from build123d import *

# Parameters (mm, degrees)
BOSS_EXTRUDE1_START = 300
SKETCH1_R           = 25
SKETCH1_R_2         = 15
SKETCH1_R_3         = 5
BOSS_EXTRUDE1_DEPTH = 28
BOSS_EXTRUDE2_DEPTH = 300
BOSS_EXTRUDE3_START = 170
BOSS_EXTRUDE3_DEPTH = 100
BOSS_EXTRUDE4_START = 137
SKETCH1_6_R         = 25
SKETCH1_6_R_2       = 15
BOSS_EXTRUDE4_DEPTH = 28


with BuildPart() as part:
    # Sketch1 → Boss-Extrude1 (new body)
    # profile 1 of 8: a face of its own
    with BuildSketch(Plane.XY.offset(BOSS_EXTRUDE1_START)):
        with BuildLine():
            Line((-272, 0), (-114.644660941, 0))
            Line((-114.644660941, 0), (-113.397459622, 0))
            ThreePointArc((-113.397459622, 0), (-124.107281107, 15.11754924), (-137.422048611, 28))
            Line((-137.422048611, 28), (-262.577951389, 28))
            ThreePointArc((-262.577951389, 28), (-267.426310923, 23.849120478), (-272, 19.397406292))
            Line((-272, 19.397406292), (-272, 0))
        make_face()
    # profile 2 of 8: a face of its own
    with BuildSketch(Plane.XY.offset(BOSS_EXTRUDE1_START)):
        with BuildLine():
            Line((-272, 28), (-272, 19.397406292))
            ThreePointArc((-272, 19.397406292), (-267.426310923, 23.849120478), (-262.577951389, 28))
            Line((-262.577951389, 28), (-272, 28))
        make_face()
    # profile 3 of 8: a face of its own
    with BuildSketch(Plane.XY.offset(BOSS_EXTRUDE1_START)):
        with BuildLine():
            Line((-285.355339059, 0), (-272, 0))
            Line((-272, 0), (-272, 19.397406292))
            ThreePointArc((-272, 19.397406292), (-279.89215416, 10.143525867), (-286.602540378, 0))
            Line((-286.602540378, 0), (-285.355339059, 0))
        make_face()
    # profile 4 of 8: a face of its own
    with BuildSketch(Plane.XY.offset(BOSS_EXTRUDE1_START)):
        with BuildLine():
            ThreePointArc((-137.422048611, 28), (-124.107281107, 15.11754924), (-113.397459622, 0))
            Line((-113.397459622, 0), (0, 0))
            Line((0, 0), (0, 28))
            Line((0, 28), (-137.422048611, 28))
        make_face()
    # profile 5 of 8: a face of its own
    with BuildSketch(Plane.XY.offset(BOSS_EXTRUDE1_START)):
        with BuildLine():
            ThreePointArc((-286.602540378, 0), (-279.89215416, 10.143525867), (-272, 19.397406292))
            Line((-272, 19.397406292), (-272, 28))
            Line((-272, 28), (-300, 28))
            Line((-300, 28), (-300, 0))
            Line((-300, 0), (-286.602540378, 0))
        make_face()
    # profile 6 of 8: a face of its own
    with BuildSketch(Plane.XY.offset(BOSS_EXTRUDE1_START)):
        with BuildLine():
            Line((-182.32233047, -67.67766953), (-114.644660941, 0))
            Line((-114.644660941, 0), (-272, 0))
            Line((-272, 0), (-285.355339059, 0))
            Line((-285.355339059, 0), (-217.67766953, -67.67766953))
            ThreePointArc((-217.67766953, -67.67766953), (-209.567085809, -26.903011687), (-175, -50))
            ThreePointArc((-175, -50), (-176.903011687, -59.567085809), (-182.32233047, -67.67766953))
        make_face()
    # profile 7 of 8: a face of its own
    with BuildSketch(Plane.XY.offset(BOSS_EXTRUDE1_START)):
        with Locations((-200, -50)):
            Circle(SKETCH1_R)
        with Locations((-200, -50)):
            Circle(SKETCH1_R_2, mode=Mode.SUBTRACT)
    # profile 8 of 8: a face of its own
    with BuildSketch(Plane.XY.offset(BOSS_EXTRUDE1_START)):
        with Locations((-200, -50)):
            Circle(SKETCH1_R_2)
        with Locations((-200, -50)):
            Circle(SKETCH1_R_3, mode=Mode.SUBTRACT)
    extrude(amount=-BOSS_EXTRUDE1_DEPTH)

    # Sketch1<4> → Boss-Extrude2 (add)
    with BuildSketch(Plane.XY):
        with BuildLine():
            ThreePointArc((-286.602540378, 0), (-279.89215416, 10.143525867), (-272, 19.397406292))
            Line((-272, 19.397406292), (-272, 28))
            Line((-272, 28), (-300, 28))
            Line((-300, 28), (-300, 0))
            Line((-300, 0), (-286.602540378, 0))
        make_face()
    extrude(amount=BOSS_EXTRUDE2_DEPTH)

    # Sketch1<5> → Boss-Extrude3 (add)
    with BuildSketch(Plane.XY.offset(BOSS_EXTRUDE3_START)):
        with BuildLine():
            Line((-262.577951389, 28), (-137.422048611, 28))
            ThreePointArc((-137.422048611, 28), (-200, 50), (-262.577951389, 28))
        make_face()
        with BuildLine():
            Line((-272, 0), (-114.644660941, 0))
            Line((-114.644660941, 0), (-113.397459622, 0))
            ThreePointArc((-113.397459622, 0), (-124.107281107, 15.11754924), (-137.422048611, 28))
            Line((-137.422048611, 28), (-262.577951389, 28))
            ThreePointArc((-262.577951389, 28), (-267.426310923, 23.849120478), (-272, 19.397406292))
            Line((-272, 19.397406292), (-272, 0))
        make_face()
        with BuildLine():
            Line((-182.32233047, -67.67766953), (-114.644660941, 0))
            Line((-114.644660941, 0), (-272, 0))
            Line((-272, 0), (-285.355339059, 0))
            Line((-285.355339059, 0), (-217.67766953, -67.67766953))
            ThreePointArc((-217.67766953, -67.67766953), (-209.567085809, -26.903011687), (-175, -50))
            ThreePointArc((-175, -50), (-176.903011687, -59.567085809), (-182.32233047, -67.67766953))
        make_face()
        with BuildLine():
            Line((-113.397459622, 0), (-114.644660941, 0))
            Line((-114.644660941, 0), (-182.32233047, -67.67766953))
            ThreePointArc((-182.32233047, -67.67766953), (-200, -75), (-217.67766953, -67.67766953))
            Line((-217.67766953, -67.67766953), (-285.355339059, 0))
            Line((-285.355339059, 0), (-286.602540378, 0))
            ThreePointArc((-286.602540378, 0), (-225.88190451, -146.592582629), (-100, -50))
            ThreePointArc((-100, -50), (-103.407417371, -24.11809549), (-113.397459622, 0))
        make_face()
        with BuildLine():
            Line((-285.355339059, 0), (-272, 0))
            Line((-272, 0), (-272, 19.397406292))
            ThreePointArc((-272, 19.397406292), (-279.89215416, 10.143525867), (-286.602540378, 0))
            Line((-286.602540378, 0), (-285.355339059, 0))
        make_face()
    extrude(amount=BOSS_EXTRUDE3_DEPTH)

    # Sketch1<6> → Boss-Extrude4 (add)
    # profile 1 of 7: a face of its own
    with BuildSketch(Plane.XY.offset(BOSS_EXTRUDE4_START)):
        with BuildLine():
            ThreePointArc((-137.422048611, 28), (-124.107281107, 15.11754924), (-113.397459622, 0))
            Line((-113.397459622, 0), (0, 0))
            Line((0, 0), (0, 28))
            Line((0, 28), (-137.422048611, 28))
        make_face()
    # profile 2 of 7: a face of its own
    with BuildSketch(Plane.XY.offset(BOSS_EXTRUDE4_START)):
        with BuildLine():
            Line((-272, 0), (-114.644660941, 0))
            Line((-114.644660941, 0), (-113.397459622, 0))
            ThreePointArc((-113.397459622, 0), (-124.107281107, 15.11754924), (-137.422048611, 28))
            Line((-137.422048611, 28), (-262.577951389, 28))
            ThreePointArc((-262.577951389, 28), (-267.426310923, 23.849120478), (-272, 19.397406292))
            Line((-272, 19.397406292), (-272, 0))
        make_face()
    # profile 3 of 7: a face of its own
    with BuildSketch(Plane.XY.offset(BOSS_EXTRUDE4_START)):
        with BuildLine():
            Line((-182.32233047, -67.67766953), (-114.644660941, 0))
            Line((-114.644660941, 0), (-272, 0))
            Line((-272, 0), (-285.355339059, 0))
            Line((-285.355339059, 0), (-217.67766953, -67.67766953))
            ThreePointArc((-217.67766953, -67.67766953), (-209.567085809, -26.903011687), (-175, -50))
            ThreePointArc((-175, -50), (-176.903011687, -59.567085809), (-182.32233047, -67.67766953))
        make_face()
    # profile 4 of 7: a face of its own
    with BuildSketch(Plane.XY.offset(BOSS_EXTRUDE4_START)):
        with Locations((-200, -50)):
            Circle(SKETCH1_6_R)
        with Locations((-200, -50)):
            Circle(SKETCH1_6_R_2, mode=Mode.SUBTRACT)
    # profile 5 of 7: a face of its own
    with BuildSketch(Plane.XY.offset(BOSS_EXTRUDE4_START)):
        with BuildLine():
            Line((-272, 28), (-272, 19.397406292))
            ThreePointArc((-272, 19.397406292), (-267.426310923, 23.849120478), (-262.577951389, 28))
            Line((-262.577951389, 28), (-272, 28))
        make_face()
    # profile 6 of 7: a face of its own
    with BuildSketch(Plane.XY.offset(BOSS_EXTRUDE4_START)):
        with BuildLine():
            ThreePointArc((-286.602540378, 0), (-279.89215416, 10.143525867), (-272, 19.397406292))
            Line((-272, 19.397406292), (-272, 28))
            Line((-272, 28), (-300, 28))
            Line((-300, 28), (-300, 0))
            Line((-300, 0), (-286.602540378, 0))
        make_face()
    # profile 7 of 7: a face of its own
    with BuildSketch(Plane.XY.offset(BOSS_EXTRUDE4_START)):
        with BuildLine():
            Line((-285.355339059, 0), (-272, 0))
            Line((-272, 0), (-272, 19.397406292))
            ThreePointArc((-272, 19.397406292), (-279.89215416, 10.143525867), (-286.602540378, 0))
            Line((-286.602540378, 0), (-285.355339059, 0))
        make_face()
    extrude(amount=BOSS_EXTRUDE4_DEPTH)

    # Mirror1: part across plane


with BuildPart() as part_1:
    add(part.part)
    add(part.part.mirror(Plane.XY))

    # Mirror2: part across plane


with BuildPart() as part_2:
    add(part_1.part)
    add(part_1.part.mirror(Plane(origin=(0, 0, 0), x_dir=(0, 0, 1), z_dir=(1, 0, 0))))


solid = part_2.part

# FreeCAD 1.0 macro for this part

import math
import FreeCAD as App
import Part
import Sketcher

V = App.Vector

doc = App.newDocument("Part")
body = doc.addObject("PartDesign::Body", "Body")

# Sketch on XY plane
sketch1 = body.newObject("Sketcher::SketchObject", "Sketch")
sketch1.AttachmentSupport = (doc.getObject("XY_Plane"), [""])
sketch1.MapMode = "FlatFace"
sketch1.AttachmentOffset = App.Placement(V(0, 0, 300), App.Rotation())
sketch1.addGeometry([
    Part.LineSegment(V(-115, 0, 0), V(0, 0, 0)),  # 0
    Part.LineSegment(V(0, 0, 0), V(0, 28, 0)),  # 1
    Part.LineSegment(V(0, 28, 0), V(-300, 28, 0)),  # 2
    Part.LineSegment(V(-300, 28, 0), V(-300, 0, 0)),  # 3
    Part.LineSegment(V(-300, 0, 0), V(-285, 0, 0)),  # 4
    Part.LineSegment(V(-285, 0, 0), V(-218, -68, 0)),  # 5
    Part.ArcOfCircle(Part.Circle(V(-200, -50, 0), V(0, 0, 1), 25), math.radians(-135), math.radians(-45)),  # 6
    Part.LineSegment(V(-182, -68, 0), V(-115, 0, 0)),  # 7
    Part.Circle(V(-200, -50, 0), V(0, 0, 1), 5),  # 8
], False)
sketch1.addConstraint([
    Sketcher.Constraint("Coincident", 0, 2, 1, 1),
    Sketcher.Constraint("Coincident", 1, 2, 2, 1),
    Sketcher.Constraint("Coincident", 2, 2, 3, 1),
    Sketcher.Constraint("Coincident", 3, 2, 4, 1),
    Sketcher.Constraint("Coincident", 4, 2, 5, 1),
    Sketcher.Constraint("Tangent", 5, 2, 6, 1),
    Sketcher.Constraint("Tangent", 6, 2, 7, 1),
    Sketcher.Constraint("Coincident", 7, 2, 0, 1),
    Sketcher.Constraint("Horizontal", 0),
    Sketcher.Constraint("Vertical", 1),
    Sketcher.Constraint("Horizontal", 2),
    Sketcher.Constraint("Vertical", 3),
    Sketcher.Constraint("Horizontal", 4),
    Sketcher.Constraint("Coincident", 0, 2, -1, 1),
    Sketcher.Constraint("Coincident", 8, 3, 6, 3),
    Sketcher.Constraint("PointOnObject", 3, 2, -1),
    Sketcher.Constraint("Perpendicular", 5, 7),
    Sketcher.Constraint("Horizontal", 5, 2, 6, 2),
    Sketcher.Constraint("Diameter", 8, 10.0),
    Sketcher.Constraint("Radius", 6, 25.0),
    Sketcher.Constraint("DistanceX", 2, 2, 2, 1, 300.0),
    Sketcher.Constraint("DistanceY", 1, 1, 1, 2, 28.0),
    Sketcher.Constraint("DistanceX", 6, 3, -1, 1, 200.0),
    Sketcher.Constraint("DistanceY", 6, 3, -1, 1, 50.0),
])
pad1 = body.newObject("PartDesign::Pad", "Pad")
pad1.Profile = sketch1
pad1.Length = 28
pad1.Reversed = True

# Sketch on XY plane
sketch2 = body.newObject("Sketcher::SketchObject", "Sketch001")
sketch2.AttachmentSupport = (doc.getObject("XY_Plane"), [""])
sketch2.MapMode = "FlatFace"
sketch2.addGeometry([
    Part.ArcOfCircle(Part.Circle(V(-200, -50, 0), V(0, 0, 1), 100), math.radians(136.05), math.radians(150)),  # 0
    Part.LineSegment(V(-272, 19, 0), V(-272, 28, 0)),  # 1
    Part.LineSegment(V(-272, 28, 0), V(-300, 28, 0)),  # 2
    Part.LineSegment(V(-300, 28, 0), V(-300, 0, 0)),  # 3
    Part.LineSegment(V(-300, 0, 0), V(-287, 0, 0)),  # 4
], False)
sketch2.addConstraint([
    Sketcher.Constraint("Coincident", 0, 1, 1, 1),
    Sketcher.Constraint("Coincident", 1, 2, 2, 1),
    Sketcher.Constraint("Coincident", 2, 2, 3, 1),
    Sketcher.Constraint("Coincident", 3, 2, 4, 1),
    Sketcher.Constraint("Coincident", 4, 2, 0, 2),
    Sketcher.Constraint("Vertical", 1),
    Sketcher.Constraint("Horizontal", 2),
    Sketcher.Constraint("Vertical", 3),
    Sketcher.Constraint("Horizontal", 4),
    Sketcher.Constraint("PointOnObject", 3, 2, -1),
    Sketcher.Constraint("Equal", 2, 3),
    Sketcher.Constraint("Radius", 0, 100.0),
    Sketcher.Constraint("DistanceX", 2, 2, 2, 1, 28.0),
    Sketcher.Constraint("DistanceX", 0, 3, -1, 1, 200.0),
    Sketcher.Constraint("DistanceY", 0, 3, -1, 1, 50.0),
    Sketcher.Constraint("DistanceX", 0, 1, -1, 1, 272.0),
])
pad2 = body.newObject("PartDesign::Pad", "Pad001")
pad2.Profile = sketch2
pad2.Length = 300

# Sketch on XY plane
sketch3 = body.newObject("Sketcher::SketchObject", "Sketch002")
sketch3.AttachmentSupport = (doc.getObject("XY_Plane"), [""])
sketch3.MapMode = "FlatFace"
sketch3.AttachmentOffset = App.Placement(V(0, 0, 170), App.Rotation())
sketch3.addGeometry([
    Part.ArcOfCircle(Part.Circle(V(-200, -50, 0), V(0, 0, 1), 100), math.radians(51), math.radians(129)),  # 0
    Part.ArcOfCircle(Part.Circle(V(-200, -50, 0), V(0, 0, 1), 100), math.radians(128.74), math.radians(136.05)),  # 1
    Part.ArcOfCircle(Part.Circle(V(-200, -50, 0), V(0, 0, 1), 100), math.radians(136.05), math.radians(150)),  # 2
    Part.ArcOfCircle(Part.Circle(V(-200, -50, 0), V(0, 0, 1), 100), math.radians(150), math.radians(360)),  # 3
    Part.ArcOfCircle(Part.Circle(V(-200, -50, 0), V(0, 0, 1), 100), math.radians(0), math.radians(30)),  # 4
    Part.ArcOfCircle(Part.Circle(V(-200, -50, 0), V(0, 0, 1), 100), math.radians(30), math.radians(51)),  # 5
    Part.ArcOfCircle(Part.Circle(V(-200, -50, 0), V(0, 0, 1), 25), math.radians(-45), math.radians(225)),  # 6
    Part.ArcOfCircle(Part.Circle(V(-200, -50, 0), V(0, 0, 1), 25), math.radians(-135), math.radians(-45)),  # 7
], False)
sketch3.addConstraint([
    Sketcher.Constraint("Tangent", 0, 2, 1, 1),
    Sketcher.Constraint("Tangent", 1, 2, 2, 1),
    Sketcher.Constraint("Tangent", 2, 2, 3, 1),
    Sketcher.Constraint("Tangent", 3, 2, 4, 1),
    Sketcher.Constraint("Tangent", 4, 2, 5, 1),
    Sketcher.Constraint("Tangent", 5, 2, 0, 1),
    Sketcher.Constraint("Tangent", 6, 1, 7, 2),
    Sketcher.Constraint("Coincident", 7, 1, 6, 2),
    Sketcher.Constraint("Coincident", 2, 3, 0, 3),
    Sketcher.Constraint("Coincident", 6, 3, 0, 3),
    Sketcher.Constraint("Equal", 2, 3),
    Sketcher.Constraint("PointOnObject", 2, 2, -1),
    Sketcher.Constraint("PointOnObject", 4, 2, -1),
    Sketcher.Constraint("Horizontal", 7, 3, 3, 2),
    Sketcher.Constraint("Horizontal", 0, 2, 5, 2),
    Sketcher.Constraint("Horizontal", 6, 1, 7, 1),
    Sketcher.Constraint("Radius", 0, 100.0),
    Sketcher.Constraint("Radius", 6, 25.0),
    Sketcher.Constraint("DistanceX", 0, 3, -1, 1, 200.0),
    Sketcher.Constraint("DistanceY", 0, 3, -1, 1, 50.0),
    Sketcher.Constraint("DistanceY", -1, 1, 0, 2, 28.0),
    Sketcher.Constraint("DistanceX", 1, 2, -1, 1, 272.0),
    Sketcher.Constraint("DistanceX", 6, 1, -1, 1, 182.32233),
])
pad3 = body.newObject("PartDesign::Pad", "Pad002")
pad3.Profile = sketch3
pad3.Length = 100

# Sketch on XY plane
sketch4 = body.newObject("Sketcher::SketchObject", "Sketch003")
sketch4.AttachmentSupport = (doc.getObject("XY_Plane"), [""])
sketch4.MapMode = "FlatFace"
sketch4.AttachmentOffset = App.Placement(V(0, 0, 137), App.Rotation())
sketch4.addGeometry([
    Part.LineSegment(V(0, 0, 0), V(0, 28, 0)),  # 0
    Part.LineSegment(V(0, 28, 0), V(-300, 28, 0)),  # 1
    Part.LineSegment(V(-300, 28, 0), V(-300, 0, 0)),  # 2
    Part.LineSegment(V(-300, 0, 0), V(-285, 0, 0)),  # 3
    Part.LineSegment(V(-285, 0, 0), V(-218, -68, 0)),  # 4
    Part.ArcOfCircle(Part.Circle(V(-200, -50, 0), V(0, 0, 1), 25), math.radians(-135), math.radians(-45)),  # 5
    Part.LineSegment(V(-182, -68, 0), V(-115, 0, 0)),  # 6
    Part.LineSegment(V(-115, 0, 0), V(0, 0, 0)),  # 7
    Part.Circle(V(-200, -50, 0), V(0, 0, 1), 15),  # 8
], False)
sketch4.addConstraint([
    Sketcher.Constraint("Coincident", 0, 2, 1, 1),
    Sketcher.Constraint("Coincident", 1, 2, 2, 1),
    Sketcher.Constraint("Coincident", 2, 2, 3, 1),
    Sketcher.Constraint("Coincident", 3, 2, 4, 1),
    Sketcher.Constraint("Tangent", 4, 2, 5, 1),
    Sketcher.Constraint("Tangent", 5, 2, 6, 1),
    Sketcher.Constraint("Coincident", 6, 2, 7, 1),
    Sketcher.Constraint("Coincident", 7, 2, 0, 1),
    Sketcher.Constraint("Vertical", 0),
    Sketcher.Constraint("Horizontal", 1),
    Sketcher.Constraint("Vertical", 2),
    Sketcher.Constraint("Horizontal", 3),
    Sketcher.Constraint("Horizontal", 7),
    Sketcher.Constraint("Coincident", 7, 2, -1, 1),
    Sketcher.Constraint("Coincident", 8, 3, 5, 3),
    Sketcher.Constraint("PointOnObject", 2, 2, -1),
    Sketcher.Constraint("Perpendicular", 4, 6),
    Sketcher.Constraint("Horizontal", 4, 2, 5, 2),
    Sketcher.Constraint("Diameter", 8, 30.0),
    Sketcher.Constraint("Radius", 5, 25.0),
    Sketcher.Constraint("DistanceX", 1, 2, 1, 1, 300.0),
    Sketcher.Constraint("DistanceY", 0, 1, 0, 2, 28.0),
    Sketcher.Constraint("DistanceX", 5, 3, -1, 1, 200.0),
    Sketcher.Constraint("DistanceY", 5, 3, -1, 1, 50.0),
])
pad4 = body.newObject("PartDesign::Pad", "Pad003")
pad4.Profile = sketch4
pad4.Length = 28
body2 = doc.addObject("PartDesign::Body", "Body001")
doc.recompute()

body2.BaseFeature = body
doc.recompute()

mirroring = doc.addObject("Part::Mirroring", "Mirroring")
mirroring.Source = body
mirroring.Base = V(0, 0, 0)
mirroring.Normal = V(0, 0, 1)
body3 = doc.addObject("PartDesign::Body", "Body002")
body3.BaseFeature = mirroring
boolean = body2.newObject("PartDesign::Boolean", "Boolean")
boolean.Type = "Fuse"
boolean.addObjects([body3])
doc.recompute()
body4 = doc.addObject("PartDesign::Body", "Body003")
doc.recompute()

body4.BaseFeature = body2
doc.recompute()

mirroring2 = doc.addObject("Part::Mirroring", "Mirroring001")
mirroring2.Source = body2
mirroring2.Base = V(0, 0, 0)
mirroring2.Normal = V(1, 0, 0)
body5 = doc.addObject("PartDesign::Body", "Body004")
body5.BaseFeature = mirroring2
boolean2 = body4.newObject("PartDesign::Boolean", "Boolean001")
boolean2.Type = "Fuse"
boolean2.addObjects([body5])
doc.recompute()
mirroring.Visibility = False
mirroring2.Visibility = False

doc.recompute()
